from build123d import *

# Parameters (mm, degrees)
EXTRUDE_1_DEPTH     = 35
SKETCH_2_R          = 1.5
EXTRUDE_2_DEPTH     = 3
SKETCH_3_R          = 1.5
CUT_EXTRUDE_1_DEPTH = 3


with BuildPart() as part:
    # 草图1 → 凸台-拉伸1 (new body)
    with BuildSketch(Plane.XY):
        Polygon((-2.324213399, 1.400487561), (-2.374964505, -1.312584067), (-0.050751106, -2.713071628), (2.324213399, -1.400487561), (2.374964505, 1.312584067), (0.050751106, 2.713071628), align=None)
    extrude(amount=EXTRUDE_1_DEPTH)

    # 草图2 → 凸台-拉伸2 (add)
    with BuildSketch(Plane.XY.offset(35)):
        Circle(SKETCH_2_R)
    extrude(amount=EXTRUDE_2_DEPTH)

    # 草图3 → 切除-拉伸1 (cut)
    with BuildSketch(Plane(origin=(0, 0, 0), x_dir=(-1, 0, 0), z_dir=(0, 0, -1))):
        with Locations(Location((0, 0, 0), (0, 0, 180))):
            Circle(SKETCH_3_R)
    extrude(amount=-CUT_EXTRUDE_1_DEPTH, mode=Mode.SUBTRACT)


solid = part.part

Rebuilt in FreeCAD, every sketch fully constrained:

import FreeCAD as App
import Part
import Sketcher
from FreeCAD import Vector


def add_polygon(sketch, points):
    """Adds a closed chain of lines whose ends are joined by coincident constraints."""
    first, n = sketch.GeometryCount, len(points)
    for a, b in zip(points, points[1:] + points[:1]):
        sketch.addGeometry(Part.LineSegment(App.Vector(*a, 0), App.Vector(*b, 0)), False)
    for i in range(n):
        sketch.addConstraint(Sketcher.Constraint("Coincident", first + i, 2, first + (i + 1) % n, 1))

doc = App.newDocument("Part")
body = doc.addObject("PartDesign::Body", "Body")

# Sketch on XY plane
sketch1 = doc.addObject("Sketcher::SketchObject", "Sketch")
body.addObject(sketch1)
sketch1.AttachmentSupport = (doc.XY_Plane, [""])
sketch1.MapMode = "FlatFace"
add_polygon(sketch1, [(-2.3, 1.4), (-2.4, -1.3), (-0.1, -2.7), (2.3, -1.4), (2.4, 1.3), (0.1, 2.7)])  # lines 0-5
sketch1.addConstraint([
    Sketcher.Constraint("Symmetric", 0, 2, 3, 2, -1, 1),
    Sketcher.Constraint("Symmetric", 1, 2, 4, 2, -1, 1),
    Sketcher.Constraint("Symmetric", 2, 2, 5, 2, -1, 1),
    Sketcher.Constraint("Equal", 0, 1),
    Sketcher.Constraint("Equal", 1, 2),
    Sketcher.Constraint("DistanceX", 1, 2, -1, 1, 0.050751),
    Sketcher.Constraint("DistanceY", 1, 2, -1, 1, 2.713072),
    Sketcher.Constraint("DistanceX", 2, 2, 3, 2, 0.050751),
    Sketcher.Constraint("DistanceY", 2, 2, 3, 2, 2.713072),
])
pad1 = doc.addObject("PartDesign::Pad", "Pad")
body.addObject(pad1)
pad1.Profile = sketch1
pad1.Length = 35

# Sketch on XY plane
sketch2 = doc.addObject("Sketcher::SketchObject", "Sketch001")
body.addObject(sketch2)
sketch2.AttachmentSupport = (doc.XY_Plane, [""])
sketch2.MapMode = "FlatFace"
sketch2.AttachmentOffset = App.Placement(Vector(0, 0, 35), App.Rotation())
sketch2.addGeometry(Part.Circle(Vector(0, 0, 0), Vector(0, 0, 1), 1.5), False)
sketch2.addConstraint([
    Sketcher.Constraint("Coincident", 0, 3, -1, 1),
    Sketcher.Constraint("Diameter", 0, 3.0),
])
pad2 = doc.addObject("PartDesign::Pad", "Pad001")
body.addObject(pad2)
pad2.Profile = sketch2
pad2.Length = 3

# Sketch on XY plane
sketch3 = doc.addObject("Sketcher::SketchObject", "Sketch002")
body.addObject(sketch3)
sketch3.AttachmentSupport = (doc.XY_Plane, [""])
sketch3.MapMode = "FlatFace"
sketch3.addGeometry(Part.Circle(Vector(0, 0, 0), Vector(0, 0, 1), 1.5), False)
sketch3.addConstraint([
    Sketcher.Constraint("Coincident", 0, 3, -1, 1),
    Sketcher.Constraint("Diameter", 0, 3.0),
])
pocket1 = doc.addObject("PartDesign::Pocket", "Pocket")
body.addObject(pocket1)
pocket1.Profile = sketch3
pocket1.Length = 3
pocket1.Reversed = True

doc.recompute()
